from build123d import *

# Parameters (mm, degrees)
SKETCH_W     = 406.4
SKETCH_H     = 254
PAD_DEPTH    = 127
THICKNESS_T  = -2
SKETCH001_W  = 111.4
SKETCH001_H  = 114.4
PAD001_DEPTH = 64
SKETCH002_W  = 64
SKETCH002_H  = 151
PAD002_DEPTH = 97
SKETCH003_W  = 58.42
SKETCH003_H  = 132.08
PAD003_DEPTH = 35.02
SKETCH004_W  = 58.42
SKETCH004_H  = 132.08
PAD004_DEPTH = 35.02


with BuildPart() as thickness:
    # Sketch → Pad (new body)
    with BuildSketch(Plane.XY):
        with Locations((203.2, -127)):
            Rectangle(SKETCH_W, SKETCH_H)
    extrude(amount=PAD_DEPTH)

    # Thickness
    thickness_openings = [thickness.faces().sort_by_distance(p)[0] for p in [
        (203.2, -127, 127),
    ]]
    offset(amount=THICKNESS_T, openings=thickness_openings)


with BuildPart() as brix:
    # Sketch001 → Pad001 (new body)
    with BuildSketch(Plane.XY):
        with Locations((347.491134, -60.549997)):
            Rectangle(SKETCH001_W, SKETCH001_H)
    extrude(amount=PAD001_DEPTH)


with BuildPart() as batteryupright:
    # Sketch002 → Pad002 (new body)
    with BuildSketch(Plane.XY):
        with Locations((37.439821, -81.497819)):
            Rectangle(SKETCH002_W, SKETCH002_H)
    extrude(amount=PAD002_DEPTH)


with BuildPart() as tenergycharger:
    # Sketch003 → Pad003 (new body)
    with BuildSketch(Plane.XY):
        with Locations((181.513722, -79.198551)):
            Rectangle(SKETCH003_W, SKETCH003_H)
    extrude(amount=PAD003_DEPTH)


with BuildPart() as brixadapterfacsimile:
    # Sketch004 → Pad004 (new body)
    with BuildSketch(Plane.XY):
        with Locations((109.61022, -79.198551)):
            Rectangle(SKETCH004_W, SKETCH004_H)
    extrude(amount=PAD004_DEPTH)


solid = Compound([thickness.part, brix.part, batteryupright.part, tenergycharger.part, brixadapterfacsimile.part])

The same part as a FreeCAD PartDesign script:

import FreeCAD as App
import Part
import Sketcher


def faces_at(feature, points):
    """Names of the faces that lie closest to the given points."""
    faces = feature.Shape.Faces
    near = lambda p: min(range(len(faces)), key=lambda i: faces[i].distToShape(Part.Vertex(*p))[0])
    return sorted({f"Face{near(p) + 1}" for p in points})


def add_polygon(sketch, points):
    """Adds a closed chain of lines whose ends are joined by coincident constraints."""
    first, n = sketch.GeometryCount, len(points)
    for a, b in zip(points, points[1:] + points[:1]):
        sketch.addGeometry(Part.LineSegment(App.Vector(*a, 0), App.Vector(*b, 0)), False)
    for i in range(n):
        sketch.addConstraint(Sketcher.Constraint("Coincident", first + i, 2, first + (i + 1) % n, 1))

doc = App.newDocument("Part")
body = doc.addObject("PartDesign::Body", "Body")

sketch1 = body.newObject("Sketcher::SketchObject", "Sketch")
sketch1.AttachmentSupport = (doc.getObject("XY_Plane"), [""])
sketch1.MapMode = "FlatFace"
add_polygon(sketch1, [(0, 0), (0, -254), (406, -254), (406, 0)])
sketch1.addConstraint([
    Sketcher.Constraint("Vertical", 0),
    Sketcher.Constraint("Horizontal", 1),
    Sketcher.Constraint("Vertical", 2),
    Sketcher.Constraint("Horizontal", 3),
    Sketcher.Constraint("Coincident", 3, 2, -1, 1),
    Sketcher.Constraint("DistanceY", 0, 2, 0, 1, 254.0),
    Sketcher.Constraint("DistanceX", 1, 1, 1, 2, 406.4),
])
pad1 = body.newObject("PartDesign::Pad", "Pad")
pad1.Profile = sketch1
pad1.Length = 127
doc.recompute()

thickness = body.newObject("PartDesign::Thickness", "Thickness")
thickness.Base = (pad1, faces_at(pad1, [(203.2, -127, 127)]))
thickness.Value = 2
thickness.Reversed = True
thickness.Join = "Arc"
body2 = doc.addObject("PartDesign::Body", "Body001")

sketch2 = body2.newObject("Sketcher::SketchObject", "Sketch001")
sketch2.AttachmentSupport = (doc.getObject("XY_Plane001"), [""])
sketch2.MapMode = "FlatFace"
add_polygon(sketch2, [(292, -3), (292, -118), (403, -118), (403, -3)])
sketch2.addConstraint([
    Sketcher.Constraint("Vertical", 0),
    Sketcher.Constraint("Horizontal", 1),
    Sketcher.Constraint("Vertical", 2),
    Sketcher.Constraint("Horizontal", 3),
    Sketcher.Constraint("DistanceX", 1, 1, 1, 2, 111.4),
    Sketcher.Constraint("DistanceY", 0, 2, 0, 1, 114.4),
    Sketcher.Constraint("DistanceX", -1, 1, 0, 2, 291.791134),
    Sketcher.Constraint("DistanceY", 0, 2, -1, 1, 117.749997),
])
pad2 = body2.newObject("PartDesign::Pad", "Pad001")
pad2.Profile = sketch2
pad2.Length = 64
body3 = doc.addObject("PartDesign::Body", "Body002")

sketch3 = body3.newObject("Sketcher::SketchObject", "Sketch002")
sketch3.AttachmentSupport = (doc.getObject("XY_Plane002"), [""])
sketch3.MapMode = "FlatFace"
add_polygon(sketch3, [(5, -6), (5, -157), (69, -157), (69, -6)])
sketch3.addConstraint([
    Sketcher.Constraint("Vertical", 0),
    Sketcher.Constraint("Horizontal", 1),
    Sketcher.Constraint("Vertical", 2),
    Sketcher.Constraint("Horizontal", 3),
    Sketcher.Constraint("DistanceX", 1, 1, 1, 2, 64.0),
    Sketcher.Constraint("DistanceY", 0, 2, 0, 1, 151.0),
    Sketcher.Constraint("DistanceX", -1, 1, 0, 2, 5.439821),
    Sketcher.Constraint("DistanceY", 0, 2, -1, 1, 156.997819),
])
pad3 = body3.newObject("PartDesign::Pad", "Pad002")
pad3.Profile = sketch3
pad3.Length = 97
body4 = doc.addObject("PartDesign::Body", "Body003")

sketch4 = body4.newObject("Sketcher::SketchObject", "Sketch003")
sketch4.AttachmentSupport = (doc.getObject("XY_Plane003"), [""])
sketch4.MapMode = "FlatFace"
add_polygon(sketch4, [(152, -13), (152, -145), (211, -145), (211, -13)])
sketch4.addConstraint([
    Sketcher.Constraint("Vertical", 0),
    Sketcher.Constraint("Horizontal", 1),
    Sketcher.Constraint("Vertical", 2),
    Sketcher.Constraint("Horizontal", 3),
    Sketcher.Constraint("DistanceX", 1, 1, 1, 2, 58.42),
    Sketcher.Constraint("DistanceY", 0, 2, 0, 1, 132.08),
    Sketcher.Constraint("DistanceX", -1, 1, 0, 2, 152.303722),
    Sketcher.Constraint("DistanceY", 0, 2, -1, 1, 145.238551),
])
pad4 = body4.newObject("PartDesign::Pad", "Pad003")
pad4.Profile = sketch4
pad4.Length = 35.02
body5 = doc.addObject("PartDesign::Body", "Body004")

sketch5 = body5.newObject("Sketcher::SketchObject", "Sketch004")
sketch5.AttachmentSupport = (doc.getObject("XY_Plane004"), [""])
sketch5.MapMode = "FlatFace"
add_polygon(sketch5, [(80, -13), (80, -145), (139, -145), (139, -13)])
sketch5.addConstraint([
    Sketcher.Constraint("Vertical", 0),
    Sketcher.Constraint("Horizontal", 1),
    Sketcher.Constraint("Vertical", 2),
    Sketcher.Constraint("Horizontal", 3),
    Sketcher.Constraint("DistanceX", 1, 1, 1, 2, 58.42),
    Sketcher.Constraint("DistanceY", 0, 2, 0, 1, 132.08),
    Sketcher.Constraint("DistanceX", -1, 1, 0, 2, 80.40022),
    Sketcher.Constraint("DistanceY", 0, 2, -1, 1, 145.238551),
])
pad5 = body5.newObject("PartDesign::Pad", "Pad004")
pad5.Profile = sketch5
pad5.Length = 35.02

doc.recompute()
